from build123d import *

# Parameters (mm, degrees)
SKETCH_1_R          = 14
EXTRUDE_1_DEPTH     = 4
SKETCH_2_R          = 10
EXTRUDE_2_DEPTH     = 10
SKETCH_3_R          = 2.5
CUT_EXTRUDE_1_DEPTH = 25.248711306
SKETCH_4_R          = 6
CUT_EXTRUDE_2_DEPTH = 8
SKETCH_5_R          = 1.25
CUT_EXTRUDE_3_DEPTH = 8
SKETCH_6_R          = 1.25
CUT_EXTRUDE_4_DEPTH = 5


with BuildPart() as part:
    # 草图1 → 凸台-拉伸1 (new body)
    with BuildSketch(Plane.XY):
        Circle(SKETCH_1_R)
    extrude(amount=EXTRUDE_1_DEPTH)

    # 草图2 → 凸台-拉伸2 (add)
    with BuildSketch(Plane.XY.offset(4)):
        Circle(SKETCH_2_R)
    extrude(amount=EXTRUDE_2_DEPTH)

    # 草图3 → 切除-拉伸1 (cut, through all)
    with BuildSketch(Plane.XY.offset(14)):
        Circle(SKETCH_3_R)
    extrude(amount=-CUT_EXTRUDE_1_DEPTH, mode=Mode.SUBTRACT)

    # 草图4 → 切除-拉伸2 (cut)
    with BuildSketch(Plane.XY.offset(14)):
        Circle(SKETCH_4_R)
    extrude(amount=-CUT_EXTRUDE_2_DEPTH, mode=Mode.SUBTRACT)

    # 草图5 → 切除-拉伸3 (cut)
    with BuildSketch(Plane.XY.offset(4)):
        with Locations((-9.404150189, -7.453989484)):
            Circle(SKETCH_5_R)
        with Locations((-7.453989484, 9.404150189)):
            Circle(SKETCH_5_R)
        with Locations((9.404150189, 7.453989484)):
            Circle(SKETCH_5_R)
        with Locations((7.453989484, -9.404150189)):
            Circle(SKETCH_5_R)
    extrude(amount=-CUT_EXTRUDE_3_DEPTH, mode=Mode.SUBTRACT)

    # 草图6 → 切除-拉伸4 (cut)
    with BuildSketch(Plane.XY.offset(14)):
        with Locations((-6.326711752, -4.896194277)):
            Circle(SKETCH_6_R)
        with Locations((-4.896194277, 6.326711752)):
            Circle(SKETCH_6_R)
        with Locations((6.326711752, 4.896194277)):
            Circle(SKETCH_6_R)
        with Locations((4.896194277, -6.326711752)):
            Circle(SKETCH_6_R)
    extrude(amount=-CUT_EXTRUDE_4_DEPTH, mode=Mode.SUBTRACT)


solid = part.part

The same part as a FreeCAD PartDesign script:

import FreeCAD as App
import Part
import Sketcher
Q = App.Units.Quantity

doc = App.newDocument("Part")
body = doc.addObject("PartDesign::Body", "Body")

sketch1 = body.newObject("Sketcher::SketchObject", "Sketch")
sketch1.AttachmentSupport = (doc.getObject("XY_Plane"), [""])
sketch1.MapMode = "FlatFace"
sketch1.addGeometry(Part.Circle(App.Vector(0, 0, 0), App.Vector(0, 0, 1), 14), False)
sketch1.addConstraint([
    Sketcher.Constraint("Coincident", 0, 3, -1, 1),
    Sketcher.Constraint("Diameter", 0, Q("28 mm")),
])
pad1 = body.newObject("PartDesign::Pad", "Pad")
pad1.Profile = sketch1
pad1.Length = 4

sketch2 = body.newObject("Sketcher::SketchObject", "Sketch001")
sketch2.AttachmentSupport = (doc.getObject("XY_Plane"), [""])
sketch2.MapMode = "FlatFace"
sketch2.AttachmentOffset = App.Placement(App.Vector(0, 0, 4), App.Rotation())
sketch2.addGeometry(Part.Circle(App.Vector(0, 0, 0), App.Vector(0, 0, 1), 10), False)
sketch2.addConstraint([
    Sketcher.Constraint("Coincident", 0, 3, -1, 1),
    Sketcher.Constraint("Diameter", 0, Q("20 mm")),
])
pad2 = body.newObject("PartDesign::Pad", "Pad001")
pad2.Profile = sketch2
pad2.Length = 10

sketch3 = body.newObject("Sketcher::SketchObject", "Sketch002")
sketch3.AttachmentSupport = (doc.getObject("XY_Plane"), [""])
sketch3.MapMode = "FlatFace"
sketch3.AttachmentOffset = App.Placement(App.Vector(0, 0, 14), App.Rotation())
sketch3.addGeometry(Part.Circle(App.Vector(0, 0, 0), App.Vector(0, 0, 1), 2.5), False)
sketch3.addConstraint([
    Sketcher.Constraint("Coincident", 0, 3, -1, 1),
    Sketcher.Constraint("Diameter", 0, Q("5 mm")),
])
pocket1 = body.newObject("PartDesign::Pocket", "Pocket")
pocket1.Profile = sketch3
pocket1.Type = "ThroughAll"

sketch4 = body.newObject("Sketcher::SketchObject", "Sketch003")
sketch4.AttachmentSupport = (doc.getObject("XY_Plane"), [""])
sketch4.MapMode = "FlatFace"
sketch4.AttachmentOffset = App.Placement(App.Vector(0, 0, 14), App.Rotation())
sketch4.addGeometry(Part.Circle(App.Vector(0, 0, 0), App.Vector(0, 0, 1), 6), False)
sketch4.addConstraint([
    Sketcher.Constraint("Coincident", 0, 3, -1, 1),
    Sketcher.Constraint("Diameter", 0, Q("12 mm")),
])
pocket2 = body.newObject("PartDesign::Pocket", "Pocket001")
pocket2.Profile = sketch4
pocket2.Length = 8

sketch5 = body.newObject("Sketcher::SketchObject", "Sketch004")
sketch5.AttachmentSupport = (doc.getObject("XY_Plane"), [""])
sketch5.MapMode = "FlatFace"
sketch5.AttachmentOffset = App.Placement(App.Vector(0, 0, 4), App.Rotation())
sketch5.addGeometry([
    Part.Circle(App.Vector(-9.4, -7.5, 0), App.Vector(0, 0, 1), 1.2),
    Part.Circle(App.Vector(-7.5, 9.4, 0), App.Vector(0, 0, 1), 1.2),
    Part.Circle(App.Vector(9.4, 7.5, 0), App.Vector(0, 0, 1), 1.2),
    Part.Circle(App.Vector(7.5, -9.4, 0), App.Vector(0, 0, 1), 1.2),
], False)
sketch5.addConstraint([
    Sketcher.Constraint("Equal", 0, 1),
    Sketcher.Constraint("Equal", 1, 2),
    Sketcher.Constraint("Equal", 2, 3),
    Sketcher.Constraint("Symmetric", 0, 3, 2, 3, -1, 1),
    Sketcher.Constraint("Symmetric", 1, 3, 3, 3, -1, 1),
    Sketcher.Constraint("Diameter", 0, Q("2.5 mm")),
    Sketcher.Constraint("DistanceX", 0, 3, 2, 3, Q("18.8083 mm")),
    Sketcher.Constraint("DistanceY", 3, 3, 1, 3, Q("18.8083 mm")),
    Sketcher.Constraint("DistanceY", 0, 3, -1, 1, Q("7.453989 mm")),
    Sketcher.Constraint("DistanceX", 1, 3, -1, 1, Q("7.453989 mm")),
])
pocket3 = body.newObject("PartDesign::Pocket", "Pocket002")
pocket3.Profile = sketch5
pocket3.Length = 8

sketch6 = body.newObject("Sketcher::SketchObject", "Sketch005")
sketch6.AttachmentSupport = (doc.getObject("XY_Plane"), [""])
sketch6.MapMode = "FlatFace"
sketch6.AttachmentOffset = App.Placement(App.Vector(0, 0, 14), App.Rotation())
sketch6.addGeometry([
    Part.Circle(App.Vector(-6.3, -4.9, 0), App.Vector(0, 0, 1), 1.2),
    Part.Circle(App.Vector(-4.9, 6.3, 0), App.Vector(0, 0, 1), 1.2),
    Part.Circle(App.Vector(6.3, 4.9, 0), App.Vector(0, 0, 1), 1.2),
    Part.Circle(App.Vector(4.9, -6.3, 0), App.Vector(0, 0, 1), 1.2),
], False)
sketch6.addConstraint([
    Sketcher.Constraint("Equal", 0, 1),
    Sketcher.Constraint("Equal", 1, 2),
    Sketcher.Constraint("Equal", 2, 3),
    Sketcher.Constraint("Symmetric", 0, 3, 2, 3, -1, 1),
    Sketcher.Constraint("Symmetric", 1, 3, 3, 3, -1, 1),
    Sketcher.Constraint("Diameter", 0, Q("2.5 mm")),
    Sketcher.Constraint("DistanceX", 0, 3, -1, 1, Q("6.326712 mm")),
    Sketcher.Constraint("DistanceY", -1, 1, 1, 3, Q("6.326712 mm")),
    Sketcher.Constraint("DistanceY", 0, 3, 2, 3, Q("9.792389 mm")),
    Sketcher.Constraint("DistanceX", 1, 3, 3, 3, Q("9.792389 mm")),
])
pocket4 = body.newObject("PartDesign::Pocket", "Pocket003")
pocket4.Profile = sketch6
pocket4.Length = 5

doc.recompute()
